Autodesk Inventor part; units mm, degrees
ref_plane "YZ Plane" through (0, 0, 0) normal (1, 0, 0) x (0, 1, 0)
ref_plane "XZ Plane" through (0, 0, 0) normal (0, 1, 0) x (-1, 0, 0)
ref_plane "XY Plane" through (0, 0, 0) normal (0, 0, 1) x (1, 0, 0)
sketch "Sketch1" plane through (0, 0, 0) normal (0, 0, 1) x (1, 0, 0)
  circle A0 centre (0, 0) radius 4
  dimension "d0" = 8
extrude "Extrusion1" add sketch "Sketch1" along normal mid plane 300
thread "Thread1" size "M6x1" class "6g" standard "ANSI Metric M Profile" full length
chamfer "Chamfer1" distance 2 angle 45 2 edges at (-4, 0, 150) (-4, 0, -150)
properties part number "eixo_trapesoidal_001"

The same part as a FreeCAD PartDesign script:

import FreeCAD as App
import Part
import Sketcher

V = App.Vector


def edges_at(feature, points):
    """Names of the edges that pass closest to the given points."""
    edges = feature.Shape.Edges
    near = lambda p: min(range(len(edges)), key=lambda i: edges[i].distToShape(Part.Vertex(*p))[0])
    return sorted({f"Edge{near(p) + 1}" for p in points})

doc = App.newDocument("Part")
params = doc.addObject("Spreadsheet::Sheet", "Params")
for row, (alias, value) in enumerate([
    ("sketch1_diameter", "8 mm"),
    ("pad1_length", "300 mm"),
    ("chamfer_size", "2 mm"),
], start=1):
    params.set(f"A{row}", alias)
    params.set(f"B{row}", "=" + value)
    params.setAlias(f"B{row}", alias)

body = doc.addObject("PartDesign::Body", "Body")

# Sketch on XY plane
sketch1 = doc.addObject("Sketcher::SketchObject", "Sketch")
body.addObject(sketch1)
sketch1.AttachmentSupport = (doc.XY_Plane, [""])
sketch1.MapMode = "FlatFace"
sketch1.addGeometry(Part.Circle(V(0, 0, 0), V(0, 0, 1), 4), False)
sketch1.addConstraint(Sketcher.Constraint("Coincident", 0, 3, -1, 1))
sketch1.addConstraint(Sketcher.Constraint("Diameter", 0, 8.0))
sketch1.setExpression("Constraints[1]", "Params.sketch1_diameter")
pad1 = doc.addObject("PartDesign::Pad", "Pad")
body.addObject(pad1)
pad1.Profile = sketch1
pad1.setExpression("Length", "Params.pad1_length")
pad1.Midplane = True
doc.recompute()

chamfer = doc.addObject("PartDesign::Chamfer", "Chamfer")
body.addObject(chamfer)
chamfer.Base = (pad1, edges_at(pad1, [(-4, 0, 150), (-4, 0, -150)]))
chamfer.setExpression("Size", "Params.chamfer_size")

doc.recompute()
